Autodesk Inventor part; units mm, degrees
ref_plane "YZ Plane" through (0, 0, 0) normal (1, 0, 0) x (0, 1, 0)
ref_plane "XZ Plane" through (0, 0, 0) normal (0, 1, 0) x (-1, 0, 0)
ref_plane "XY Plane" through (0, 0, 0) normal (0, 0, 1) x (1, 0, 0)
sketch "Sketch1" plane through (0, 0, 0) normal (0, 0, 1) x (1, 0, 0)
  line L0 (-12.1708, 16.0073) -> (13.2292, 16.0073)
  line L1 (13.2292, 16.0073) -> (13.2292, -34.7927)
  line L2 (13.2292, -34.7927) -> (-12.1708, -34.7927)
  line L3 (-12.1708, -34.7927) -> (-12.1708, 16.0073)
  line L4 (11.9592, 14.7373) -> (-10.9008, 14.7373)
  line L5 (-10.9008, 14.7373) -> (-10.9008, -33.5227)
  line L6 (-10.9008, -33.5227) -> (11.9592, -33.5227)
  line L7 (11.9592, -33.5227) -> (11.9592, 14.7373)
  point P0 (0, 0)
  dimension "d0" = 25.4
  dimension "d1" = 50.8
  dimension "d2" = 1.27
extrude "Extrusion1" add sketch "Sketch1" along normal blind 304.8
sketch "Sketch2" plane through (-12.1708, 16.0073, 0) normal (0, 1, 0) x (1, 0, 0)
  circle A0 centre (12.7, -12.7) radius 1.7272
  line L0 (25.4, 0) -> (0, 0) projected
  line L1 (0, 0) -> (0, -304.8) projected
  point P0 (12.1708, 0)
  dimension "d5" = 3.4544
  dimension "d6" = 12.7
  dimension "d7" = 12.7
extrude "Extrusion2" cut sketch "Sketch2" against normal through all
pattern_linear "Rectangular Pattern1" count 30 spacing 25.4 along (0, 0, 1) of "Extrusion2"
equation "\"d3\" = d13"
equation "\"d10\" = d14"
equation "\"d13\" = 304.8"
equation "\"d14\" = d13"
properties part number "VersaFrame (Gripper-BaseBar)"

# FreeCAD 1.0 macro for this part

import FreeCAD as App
import Part
import Sketcher

V = App.Vector
Q = App.Units.Quantity


def add_polygon(sketch, points):
    """Adds a closed chain of lines whose ends are joined by coincident constraints."""
    first, n = sketch.GeometryCount, len(points)
    for a, b in zip(points, points[1:] + points[:1]):
        sketch.addGeometry(Part.LineSegment(App.Vector(*a, 0), App.Vector(*b, 0)), False)
    for i in range(n):
        sketch.addConstraint(Sketcher.Constraint("Coincident", first + i, 2, first + (i + 1) % n, 1))

doc = App.newDocument("Part")
body = doc.addObject("PartDesign::Body", "Body")

# Sketch on XY plane
sketch1 = body.newObject("Sketcher::SketchObject", "Sketch")
sketch1.AttachmentSupport = (doc.getObject("XY_Plane"), [""])
sketch1.MapMode = "FlatFace"
add_polygon(sketch1, [(13.2292, 16.0073), (-12.1708, 16.0073), (-12.1708, -34.7927), (13.2292, -34.7927)])  # lines 0-3
add_polygon(sketch1, [(-10.9008, 14.7373), (11.9592, 14.7373), (11.9592, -33.5227), (-10.9008, -33.5227)])  # lines 4-7
sketch1.addConstraint([
    Sketcher.Constraint("Horizontal", 0),
    Sketcher.Constraint("Vertical", 1),
    Sketcher.Constraint("Horizontal", 2),
    Sketcher.Constraint("Vertical", 3),
    Sketcher.Constraint("Horizontal", 4),
    Sketcher.Constraint("Vertical", 5),
    Sketcher.Constraint("Horizontal", 6),
    Sketcher.Constraint("Vertical", 7),
    Sketcher.Constraint("DistanceX", 0, 2, 0, 1, Q("1 in")),
    Sketcher.Constraint("DistanceY", 1, 2, 1, 1, Q("2 in")),
    Sketcher.Constraint("DistanceX", 4, 2, 3, 2, Q("0.05 in")),
    Sketcher.Constraint("DistanceY", 4, 2, 3, 2, Q("0.05 in")),
    Sketcher.Constraint("DistanceY", 2, 2, 5, 2, Q("0.05 in")),
    Sketcher.Constraint("DistanceX", 1, 2, 6, 2, Q("0.05 in")),
    Sketcher.Constraint("DistanceY", -1, 1, 0, 2, Q("0.6302 in")),
    Sketcher.Constraint("DistanceX", 0, 2, -1, 1, Q("12.1708 mm")),
])
pad1 = body.newObject("PartDesign::Pad", "Pad")
pad1.Profile = sketch1
pad1.Length = Q("12 in")

# Sketch on XZ plane
sketch2 = body.newObject("Sketcher::SketchObject", "Sketch001")
sketch2.AttachmentSupport = (doc.getObject("XZ_Plane"), [""])
sketch2.MapMode = "FlatFace"
sketch2.AttachmentOffset = App.Placement(V(0, 0, -0.6302087 * 25.4), App.Rotation())
sketch2.addGeometry(Part.Circle(V(0.5292, 12.7, 0), V(0, 0, 1), 1.7272), False)
sketch2.addConstraint([
    Sketcher.Constraint("Diameter", 0, Q("0.136 in")),
    Sketcher.Constraint("DistanceY", -1, 1, 0, 3, Q("0.5 in")),
    Sketcher.Constraint("DistanceX", -1, 1, 0, 3, Q("0.5292 mm")),
])
pocket1 = body.newObject("PartDesign::Pocket", "Pocket")
pocket1.Profile = sketch2
pocket1.Type = "ThroughAll"
pocket1.Reversed = True
doc.recompute()

linearpattern = body.newObject("PartDesign::LinearPattern", "LinearPattern")
linearpattern.Originals = [pocket1]
linearpattern.Direction = (doc.getObject("Z_Axis"), [""])
linearpattern.Mode = "offset"
linearpattern.Offset = Q("1 in")
linearpattern.Occurrences = 30
body.Tip = linearpattern

doc.recompute()
